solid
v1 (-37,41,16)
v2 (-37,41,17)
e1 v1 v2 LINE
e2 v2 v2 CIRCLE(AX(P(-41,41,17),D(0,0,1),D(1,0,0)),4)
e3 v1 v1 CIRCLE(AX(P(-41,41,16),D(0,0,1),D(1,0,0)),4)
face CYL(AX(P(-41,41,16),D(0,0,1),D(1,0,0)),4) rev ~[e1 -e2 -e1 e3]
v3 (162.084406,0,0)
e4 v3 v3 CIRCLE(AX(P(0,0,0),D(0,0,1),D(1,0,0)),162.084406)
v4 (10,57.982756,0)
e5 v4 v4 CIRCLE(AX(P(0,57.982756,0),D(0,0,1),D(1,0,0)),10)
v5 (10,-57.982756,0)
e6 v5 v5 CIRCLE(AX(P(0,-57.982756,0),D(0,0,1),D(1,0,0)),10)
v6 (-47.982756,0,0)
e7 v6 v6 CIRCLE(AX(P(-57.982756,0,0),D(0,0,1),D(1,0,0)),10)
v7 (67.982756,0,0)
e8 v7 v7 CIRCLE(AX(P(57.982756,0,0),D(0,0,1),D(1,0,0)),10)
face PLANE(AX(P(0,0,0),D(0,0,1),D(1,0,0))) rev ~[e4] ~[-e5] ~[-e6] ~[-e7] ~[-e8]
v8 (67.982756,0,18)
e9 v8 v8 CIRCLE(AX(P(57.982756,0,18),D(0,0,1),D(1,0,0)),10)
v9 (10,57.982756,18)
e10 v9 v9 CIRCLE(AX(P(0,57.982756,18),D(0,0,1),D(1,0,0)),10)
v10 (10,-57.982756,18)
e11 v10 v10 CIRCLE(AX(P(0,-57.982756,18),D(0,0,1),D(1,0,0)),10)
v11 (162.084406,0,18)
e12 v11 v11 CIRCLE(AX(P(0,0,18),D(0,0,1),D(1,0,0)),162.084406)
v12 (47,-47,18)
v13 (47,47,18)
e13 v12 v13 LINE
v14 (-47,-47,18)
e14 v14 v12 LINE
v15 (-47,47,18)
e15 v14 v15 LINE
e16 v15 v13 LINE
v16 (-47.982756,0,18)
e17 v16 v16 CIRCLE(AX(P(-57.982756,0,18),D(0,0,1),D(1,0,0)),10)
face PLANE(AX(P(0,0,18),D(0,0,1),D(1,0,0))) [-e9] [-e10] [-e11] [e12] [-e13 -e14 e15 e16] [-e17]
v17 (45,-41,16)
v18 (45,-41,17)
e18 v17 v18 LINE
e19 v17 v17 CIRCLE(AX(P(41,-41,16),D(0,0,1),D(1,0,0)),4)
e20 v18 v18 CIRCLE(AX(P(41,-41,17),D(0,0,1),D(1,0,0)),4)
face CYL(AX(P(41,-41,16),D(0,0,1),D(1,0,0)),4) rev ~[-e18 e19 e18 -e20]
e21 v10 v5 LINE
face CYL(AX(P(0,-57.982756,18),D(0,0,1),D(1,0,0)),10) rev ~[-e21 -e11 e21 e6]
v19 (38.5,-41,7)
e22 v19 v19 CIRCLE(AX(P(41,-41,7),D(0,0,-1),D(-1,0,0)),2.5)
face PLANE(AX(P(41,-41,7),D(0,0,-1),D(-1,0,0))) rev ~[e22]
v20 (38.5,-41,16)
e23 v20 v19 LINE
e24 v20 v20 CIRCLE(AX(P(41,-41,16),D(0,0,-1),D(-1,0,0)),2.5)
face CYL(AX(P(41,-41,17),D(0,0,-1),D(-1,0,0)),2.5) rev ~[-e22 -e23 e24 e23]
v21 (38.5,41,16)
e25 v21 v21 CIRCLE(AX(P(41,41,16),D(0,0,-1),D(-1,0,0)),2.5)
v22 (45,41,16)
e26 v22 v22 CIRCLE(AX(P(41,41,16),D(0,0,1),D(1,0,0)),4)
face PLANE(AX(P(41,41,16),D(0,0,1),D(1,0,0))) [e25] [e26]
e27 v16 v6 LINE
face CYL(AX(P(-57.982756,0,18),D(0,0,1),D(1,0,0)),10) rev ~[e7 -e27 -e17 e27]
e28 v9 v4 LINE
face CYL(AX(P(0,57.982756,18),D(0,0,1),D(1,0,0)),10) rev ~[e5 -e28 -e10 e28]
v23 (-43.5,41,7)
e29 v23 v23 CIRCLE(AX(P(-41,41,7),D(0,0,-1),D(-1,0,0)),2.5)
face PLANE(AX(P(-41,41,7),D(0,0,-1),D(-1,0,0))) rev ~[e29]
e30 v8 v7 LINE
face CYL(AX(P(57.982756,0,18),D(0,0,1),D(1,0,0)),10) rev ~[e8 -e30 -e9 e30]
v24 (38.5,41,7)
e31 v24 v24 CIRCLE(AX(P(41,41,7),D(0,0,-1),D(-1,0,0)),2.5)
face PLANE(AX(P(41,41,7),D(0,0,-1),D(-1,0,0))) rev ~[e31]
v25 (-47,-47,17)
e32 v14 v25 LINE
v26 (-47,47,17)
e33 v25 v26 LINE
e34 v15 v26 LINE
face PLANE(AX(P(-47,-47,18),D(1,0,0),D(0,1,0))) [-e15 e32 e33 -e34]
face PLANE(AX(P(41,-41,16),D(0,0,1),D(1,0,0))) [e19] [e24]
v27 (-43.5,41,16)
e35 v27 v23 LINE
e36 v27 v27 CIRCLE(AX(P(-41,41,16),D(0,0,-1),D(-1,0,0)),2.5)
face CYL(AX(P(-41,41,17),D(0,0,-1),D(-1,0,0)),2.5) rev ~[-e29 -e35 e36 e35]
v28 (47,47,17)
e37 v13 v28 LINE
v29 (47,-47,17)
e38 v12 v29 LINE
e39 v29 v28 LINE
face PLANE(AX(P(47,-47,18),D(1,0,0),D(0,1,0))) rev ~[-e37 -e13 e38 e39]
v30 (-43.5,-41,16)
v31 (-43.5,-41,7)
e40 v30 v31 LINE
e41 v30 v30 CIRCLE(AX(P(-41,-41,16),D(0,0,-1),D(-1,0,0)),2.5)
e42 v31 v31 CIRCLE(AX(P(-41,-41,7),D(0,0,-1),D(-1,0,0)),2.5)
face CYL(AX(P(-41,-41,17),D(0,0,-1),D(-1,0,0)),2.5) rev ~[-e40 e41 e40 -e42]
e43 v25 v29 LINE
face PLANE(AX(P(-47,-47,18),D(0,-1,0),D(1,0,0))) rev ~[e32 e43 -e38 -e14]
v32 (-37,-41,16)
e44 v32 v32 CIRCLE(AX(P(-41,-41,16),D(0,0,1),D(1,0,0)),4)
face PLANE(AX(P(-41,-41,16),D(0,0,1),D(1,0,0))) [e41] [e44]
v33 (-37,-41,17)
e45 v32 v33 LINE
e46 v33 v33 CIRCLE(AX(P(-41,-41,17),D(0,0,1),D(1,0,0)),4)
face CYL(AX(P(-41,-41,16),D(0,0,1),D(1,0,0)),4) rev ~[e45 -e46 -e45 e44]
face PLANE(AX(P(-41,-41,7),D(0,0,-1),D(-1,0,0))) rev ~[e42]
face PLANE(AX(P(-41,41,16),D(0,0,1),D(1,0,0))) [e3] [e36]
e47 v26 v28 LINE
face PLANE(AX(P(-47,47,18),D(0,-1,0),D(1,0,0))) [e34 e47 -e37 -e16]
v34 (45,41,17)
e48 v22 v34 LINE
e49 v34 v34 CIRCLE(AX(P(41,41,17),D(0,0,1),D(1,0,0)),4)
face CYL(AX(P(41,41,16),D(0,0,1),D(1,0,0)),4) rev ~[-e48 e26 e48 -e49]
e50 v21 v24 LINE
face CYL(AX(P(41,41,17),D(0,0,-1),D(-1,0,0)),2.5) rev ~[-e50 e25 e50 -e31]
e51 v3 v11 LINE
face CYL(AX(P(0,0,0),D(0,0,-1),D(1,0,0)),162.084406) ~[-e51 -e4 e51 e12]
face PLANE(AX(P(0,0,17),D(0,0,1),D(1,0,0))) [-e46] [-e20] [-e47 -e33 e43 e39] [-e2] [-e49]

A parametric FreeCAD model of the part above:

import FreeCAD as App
import Part
import Sketcher

V = App.Vector
Q = App.Units.Quantity

doc = App.newDocument("Part")
body = doc.addObject("PartDesign::Body", "Body")

sketch1 = body.newObject("Sketcher::SketchObject", "Sketch")
sketch1.AttachmentSupport = (doc.getObject("XY_Plane"), [""])
sketch1.MapMode = "FlatFace"
sketch1.addGeometry(Part.Circle(V(0, 0, 0), V(0, 0, 1), 162), False)
sketch1.addConstraint([
    Sketcher.Constraint("Coincident", 0, 3, -1, 1),
    Sketcher.Constraint("Diameter", 0, Q("324.168811 mm")),
])
pad1 = body.newObject("PartDesign::Pad", "Pad")
pad1.Profile = sketch1
pad1.Length = 18

sketch2 = body.newObject("Sketcher::SketchObject", "Sketch001")
sketch2.AttachmentSupport = (doc.getObject("XY_Plane"), [""])
sketch2.MapMode = "FlatFace"
sketch2.AttachmentOffset = App.Placement(V(0, 0, 18), App.Rotation())
sketch2.addGeometry([
    Part.LineSegment(V(-47, 47, 0), V(-47, -47, 0)),
    Part.LineSegment(V(-47, -47, 0), V(47, -47, 0)),
    Part.LineSegment(V(47, -47, 0), V(47, 47, 0)),
    Part.LineSegment(V(47, 47, 0), V(-47, 47, 0)),
], False)
sketch2.addConstraint([
    Sketcher.Constraint("Coincident", 0, 2, 1, 1),
    Sketcher.Constraint("Coincident", 1, 2, 2, 1),
    Sketcher.Constraint("Coincident", 2, 2, 3, 1),
    Sketcher.Constraint("Coincident", 3, 2, 0, 1),
    Sketcher.Constraint("Vertical", 0),
    Sketcher.Constraint("Horizontal", 1),
    Sketcher.Constraint("Vertical", 2),
    Sketcher.Constraint("Horizontal", 3),
    Sketcher.Constraint("Symmetric", 0, 2, 2, 2, -1, 1),
    Sketcher.Constraint("Equal", 3, 0),
    Sketcher.Constraint("DistanceX", 1, 1, 1, 2, Q("94 mm")),
])
pocket1 = body.newObject("PartDesign::Pocket", "Pocket")
pocket1.Profile = sketch2
pocket1.Length = 1

sketch3 = body.newObject("Sketcher::SketchObject", "Sketch002")
sketch3.AttachmentSupport = (doc.getObject("XY_Plane"), [""])
sketch3.MapMode = "FlatFace"
sketch3.AttachmentOffset = App.Placement(V(0, 0, 17), App.Rotation())
sketch3.addGeometry([
    Part.Circle(V(-41, 41, 0), V(0, 0, 1), 2.5),
    Part.Circle(V(41, 41, 0), V(0, 0, 1), 2.5),
    Part.Circle(V(-41, -41, 0), V(0, 0, 1), 2.5),
    Part.Circle(V(41, -41, 0), V(0, 0, 1), 2.5),
], False)
sketch3.addConstraint([
    Sketcher.Constraint("Equal", 0, 1),
    Sketcher.Constraint("Equal", 1, 2),
    Sketcher.Constraint("Equal", 2, 3),
    Sketcher.Constraint("Symmetric", 1, 3, 2, 3, -1, 1),
    Sketcher.Constraint("Symmetric", 0, 3, 3, 3, -1, 1),
    Sketcher.Constraint("Symmetric", 0, 3, 1, 3, -2),
    Sketcher.Constraint("Diameter", 0, Q("5 mm")),
    Sketcher.Constraint("DistanceX", 0, 3, -1, 1, Q("41 mm")),
    Sketcher.Constraint("DistanceY", -1, 1, 0, 3, Q("41 mm")),
])
doc.recompute()
hole = body.newObject("PartDesign::Hole", "Hole")
hole.Profile = sketch3
hole.ThreadType = "None"
hole.Diameter = 5
hole.DepthType = "Dimension"
hole.Depth = 10
hole.DrillPoint = "Flat"
hole.HoleCutType = "Counterbore"
hole.HoleCutDiameter = 8
hole.HoleCutDepth = 1

sketch4 = body.newObject("Sketcher::SketchObject", "Sketch003")
sketch4.AttachmentSupport = (doc.getObject("XY_Plane"), [""])
sketch4.MapMode = "FlatFace"
sketch4.AttachmentOffset = App.Placement(V(0, 0, 18), App.Rotation())
sketch4.addGeometry([
    Part.Circle(V(-58, 0, 0), V(0, 0, 1), 10),
    Part.Circle(V(0, 58, 0), V(0, 0, 1), 10),
    Part.Circle(V(58, 0, 0), V(0, 0, 1), 10),
    Part.Circle(V(0, -58, 0), V(0, 0, 1), 10),
], False)
sketch4.addConstraint([
    Sketcher.Constraint("Equal", 0, 1),
    Sketcher.Constraint("Equal", 1, 2),
    Sketcher.Constraint("Equal", 2, 3),
    Sketcher.Constraint("Symmetric", 0, 3, 2, 3, -1, 1),
    Sketcher.Constraint("Symmetric", 1, 3, 3, 3, -1, 1),
    Sketcher.Constraint("PointOnObject", 0, 3, -1),
    Sketcher.Constraint("PointOnObject", 1, 3, -2),
    Sketcher.Constraint("Diameter", 0, Q("20 mm")),
    Sketcher.Constraint("DistanceX", 0, 3, -1, 1, Q("57.982756 mm")),
    Sketcher.Constraint("DistanceY", -1, 1, 1, 3, Q("57.982756 mm")),
])
pocket2 = body.newObject("PartDesign::Pocket", "Pocket001")
pocket2.Profile = sketch4
pocket2.Type = "ThroughAll"

doc.recompute()
